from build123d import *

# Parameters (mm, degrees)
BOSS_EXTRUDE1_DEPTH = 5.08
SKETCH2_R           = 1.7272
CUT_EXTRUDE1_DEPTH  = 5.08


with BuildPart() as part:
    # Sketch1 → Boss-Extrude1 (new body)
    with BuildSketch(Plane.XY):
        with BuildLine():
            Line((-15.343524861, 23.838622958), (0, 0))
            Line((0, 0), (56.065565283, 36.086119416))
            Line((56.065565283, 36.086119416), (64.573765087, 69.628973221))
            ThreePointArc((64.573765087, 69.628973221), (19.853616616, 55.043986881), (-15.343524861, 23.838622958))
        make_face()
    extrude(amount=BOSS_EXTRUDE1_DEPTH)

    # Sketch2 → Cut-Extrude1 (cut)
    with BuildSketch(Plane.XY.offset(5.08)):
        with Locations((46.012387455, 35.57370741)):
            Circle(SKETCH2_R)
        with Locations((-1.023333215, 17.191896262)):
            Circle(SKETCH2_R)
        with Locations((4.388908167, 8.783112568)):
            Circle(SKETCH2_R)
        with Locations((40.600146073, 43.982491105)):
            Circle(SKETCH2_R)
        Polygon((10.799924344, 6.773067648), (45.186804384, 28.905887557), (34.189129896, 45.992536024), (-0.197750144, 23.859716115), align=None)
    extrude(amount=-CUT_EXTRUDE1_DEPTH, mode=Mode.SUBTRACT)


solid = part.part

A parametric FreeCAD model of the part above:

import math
import FreeCAD as App
import Part
import Sketcher
Q = App.Units.Quantity


def add_polygon(sketch, points):
    """Adds a closed chain of lines whose ends are joined by coincident constraints."""
    first, n = sketch.GeometryCount, len(points)
    for a, b in zip(points, points[1:] + points[:1]):
        sketch.addGeometry(Part.LineSegment(App.Vector(*a, 0), App.Vector(*b, 0)), False)
    for i in range(n):
        sketch.addConstraint(Sketcher.Constraint("Coincident", first + i, 2, first + (i + 1) % n, 1))

doc = App.newDocument("Part")
params = doc.addObject("Spreadsheet::Sheet", "Params")
for row, (alias, value) in enumerate([
    ("sketch1_length", "2.625 in"),
    ("pad1_length", "0.2 in"),
    ("sketch2_diameter", "0.136 in"),
    ("sketch2_length", "0.8 in"),
    ("sketch2_length2", "1.61 in"),
    ("pocket1_length", "0.2 in"),
], start=1):
    params.set(f"A{row}", alias)
    params.set(f"B{row}", "=" + value)
    params.setAlias(f"B{row}", alias)

body = doc.addObject("PartDesign::Body", "Body")

# Sketch on XY plane
sketch1 = body.newObject("Sketcher::SketchObject", "Sketch")
sketch1.AttachmentSupport = (doc.getObject("XY_Plane"), [""])
sketch1.MapMode = "FlatFace"
sketch1.addGeometry(Part.LineSegment(App.Vector(-15, 24, 0), App.Vector(0, 0, 0)), False)
sketch1.addGeometry(Part.LineSegment(App.Vector(0, 0, 0), App.Vector(56, 36, 0)), False)
sketch1.addGeometry(Part.LineSegment(App.Vector(56, 36, 0), App.Vector(65, 70, 0)), False)
sketch1.addGeometry(Part.ArcOfCircle(Part.Circle(App.Vector(77, -45, 0), App.Vector(0, 0, 1), 116), math.radians(96), math.radians(143)), False)
sketch1.addConstraint(Sketcher.Constraint("Coincident", 0, 2, 1, 1))
sketch1.addConstraint(Sketcher.Constraint("Coincident", 1, 2, 2, 1))
sketch1.addConstraint(Sketcher.Constraint("Coincident", 2, 2, 3, 1))
sketch1.addConstraint(Sketcher.Constraint("Coincident", 3, 2, 0, 1))
sketch1.addConstraint(Sketcher.Constraint("Coincident", 0, 2, -1, 1))
sketch1.addConstraint(Sketcher.Constraint("Perpendicular", 0, 1))
sketch1.addConstraint(Sketcher.Constraint("Distance", 1, Q("2.625 in")))
sketch1.addConstraint(Sketcher.Constraint("Radius", 3, 115.509349))
sketch1.addConstraint(Sketcher.Constraint("DistanceX", 1, 2, 2, 2, 8.5082))
sketch1.addConstraint(Sketcher.Constraint("Distance", 0, 28.349668))
sketch1.addConstraint(Sketcher.Constraint("DistanceY", 3, 3, -1, 1, 45.179521))
sketch1.addConstraint(Sketcher.Constraint("DistanceY", -1, 1, 1, 2, 36.086119))
sketch1.setExpression("Constraints[6]", "Params.sketch1_length")
pad1 = body.newObject("PartDesign::Pad", "Pad")
pad1.Profile = sketch1
pad1.setExpression("Length", "Params.pad1_length")

# Sketch on XY plane
sketch2 = body.newObject("Sketcher::SketchObject", "Sketch001")
sketch2.AttachmentSupport = (doc.getObject("XY_Plane"), [""])
sketch2.MapMode = "FlatFace"
sketch2.AttachmentOffset = App.Placement(App.Vector(0, 0, 0.2 * 25.4), App.Rotation())
sketch2.addGeometry(Part.Circle(App.Vector(46, 35.6, 0), App.Vector(0, 0, 1), 1.7), False)  # 0
sketch2.addGeometry(Part.Circle(App.Vector(-1, 17.2, 0), App.Vector(0, 0, 1), 1.7), False)  # 1
sketch2.addGeometry(Part.Circle(App.Vector(4.4, 8.8, 0), App.Vector(0, 0, 1), 1.7), False)  # 2
sketch2.addGeometry(Part.Circle(App.Vector(40.6, 44, 0), App.Vector(0, 0, 1), 1.7), False)  # 3
add_polygon(sketch2, [(10.8, 6.8), (45.2, 28.9), (34.2, 46), (-0.2, 23.9)])  # lines 4-7
sketch2.addConstraint(Sketcher.Constraint("Equal", 0, 1))
sketch2.addConstraint(Sketcher.Constraint("Equal", 1, 2))
sketch2.addConstraint(Sketcher.Constraint("Equal", 2, 3))
sketch2.addConstraint(Sketcher.Constraint("Perpendicular", 4, 5))
sketch2.addConstraint(Sketcher.Constraint("Perpendicular", 5, 6))
sketch2.addConstraint(Sketcher.Constraint("Perpendicular", 6, 7))
sketch2.addConstraint(Sketcher.Constraint("Diameter", 0, Q("0.136 in")))
sketch2.addConstraint(Sketcher.Constraint("Distance", 5, Q("0.8 in")))
sketch2.addConstraint(Sketcher.Constraint("Distance", 4, Q("1.61 in")))
sketch2.addConstraint(Sketcher.Constraint("DistanceX", 1, 3, 0, 3, Q("1.8518 in")))
sketch2.addConstraint(Sketcher.Constraint("DistanceX", -1, 1, 2, 3, 4.388908))
sketch2.addConstraint(Sketcher.Constraint("DistanceY", -1, 1, 3, 3, 43.982491))
sketch2.addConstraint(Sketcher.Constraint("DistanceX", -1, 1, 5, 2, 34.18913))
sketch2.addConstraint(Sketcher.Constraint("DistanceX", 6, 2, -1, 1, 0.19775))
sketch2.addConstraint(Sketcher.Constraint("DistanceY", 1, 3, 0, 3, 18.381811))
sketch2.addConstraint(Sketcher.Constraint("DistanceX", 1, 3, 2, 3, 5.412241))
sketch2.addConstraint(Sketcher.Constraint("DistanceX", 3, 3, 0, 3, 5.412241))
sketch2.addConstraint(Sketcher.Constraint("DistanceY", 2, 3, 3, 3, 35.199379))
sketch2.addConstraint(Sketcher.Constraint("DistanceY", 4, 2, 0, 3, 6.66782))
sketch2.addConstraint(Sketcher.Constraint("DistanceY", -1, 1, 0, 3, 35.573707))
sketch2.setExpression("Constraints[10]", "Params.sketch2_diameter")
sketch2.setExpression("Constraints[11]", "Params.sketch2_length")
sketch2.setExpression("Constraints[12]", "Params.sketch2_length2")
pocket1 = body.newObject("PartDesign::Pocket", "Pocket")
pocket1.Profile = sketch2
pocket1.setExpression("Length", "Params.pocket1_length")

doc.recompute()
